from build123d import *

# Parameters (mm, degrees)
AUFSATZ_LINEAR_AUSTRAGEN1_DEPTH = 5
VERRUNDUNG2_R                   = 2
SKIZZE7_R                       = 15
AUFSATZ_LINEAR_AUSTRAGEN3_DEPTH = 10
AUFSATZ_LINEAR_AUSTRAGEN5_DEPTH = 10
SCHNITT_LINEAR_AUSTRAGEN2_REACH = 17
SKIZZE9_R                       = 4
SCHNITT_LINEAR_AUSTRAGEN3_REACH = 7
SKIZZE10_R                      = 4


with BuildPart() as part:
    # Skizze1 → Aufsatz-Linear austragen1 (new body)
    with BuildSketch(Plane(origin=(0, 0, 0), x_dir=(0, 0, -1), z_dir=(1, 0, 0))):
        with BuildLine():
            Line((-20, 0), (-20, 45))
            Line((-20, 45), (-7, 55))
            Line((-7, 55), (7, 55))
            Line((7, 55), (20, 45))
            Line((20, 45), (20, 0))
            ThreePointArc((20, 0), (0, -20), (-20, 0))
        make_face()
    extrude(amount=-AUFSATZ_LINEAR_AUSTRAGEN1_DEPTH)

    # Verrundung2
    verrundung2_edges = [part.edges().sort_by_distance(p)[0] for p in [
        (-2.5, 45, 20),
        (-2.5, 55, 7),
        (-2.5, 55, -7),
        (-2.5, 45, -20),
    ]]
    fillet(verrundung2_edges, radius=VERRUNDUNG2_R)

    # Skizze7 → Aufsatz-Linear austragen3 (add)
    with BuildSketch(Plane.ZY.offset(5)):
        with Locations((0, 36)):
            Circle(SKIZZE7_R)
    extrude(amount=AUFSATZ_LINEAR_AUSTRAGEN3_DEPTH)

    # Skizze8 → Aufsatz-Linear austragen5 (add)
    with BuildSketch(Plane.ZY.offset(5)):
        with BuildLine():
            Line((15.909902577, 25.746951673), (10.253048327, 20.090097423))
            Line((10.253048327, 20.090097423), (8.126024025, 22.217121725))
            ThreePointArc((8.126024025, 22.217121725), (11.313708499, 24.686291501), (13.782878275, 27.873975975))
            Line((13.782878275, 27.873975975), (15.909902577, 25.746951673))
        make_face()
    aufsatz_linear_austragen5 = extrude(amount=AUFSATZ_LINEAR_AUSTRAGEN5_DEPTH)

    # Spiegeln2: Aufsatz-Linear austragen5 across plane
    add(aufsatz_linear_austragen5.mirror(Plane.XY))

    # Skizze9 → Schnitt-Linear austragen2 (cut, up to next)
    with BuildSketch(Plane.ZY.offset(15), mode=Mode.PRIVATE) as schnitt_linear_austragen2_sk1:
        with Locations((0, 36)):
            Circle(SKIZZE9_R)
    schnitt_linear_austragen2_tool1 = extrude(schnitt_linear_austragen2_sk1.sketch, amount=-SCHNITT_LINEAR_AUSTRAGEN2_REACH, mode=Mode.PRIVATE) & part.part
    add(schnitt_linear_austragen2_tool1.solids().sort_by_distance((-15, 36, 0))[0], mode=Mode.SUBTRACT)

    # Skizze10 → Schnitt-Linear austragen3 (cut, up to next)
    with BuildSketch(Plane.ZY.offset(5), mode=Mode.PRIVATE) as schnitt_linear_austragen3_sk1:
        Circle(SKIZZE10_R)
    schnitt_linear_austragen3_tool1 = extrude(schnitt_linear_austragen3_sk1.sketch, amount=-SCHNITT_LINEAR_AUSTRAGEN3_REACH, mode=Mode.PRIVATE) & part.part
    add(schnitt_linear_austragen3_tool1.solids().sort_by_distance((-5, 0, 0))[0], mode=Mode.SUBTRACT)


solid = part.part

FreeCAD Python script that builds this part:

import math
import FreeCAD as App
import Part
import Sketcher

V = App.Vector
Q = App.Units.Quantity


def edges_at(feature, points):
    """Names of the edges that pass closest to the given points."""
    edges = feature.Shape.Edges
    near = lambda p: min(range(len(edges)), key=lambda i: edges[i].distToShape(Part.Vertex(*p))[0])
    return sorted({f"Edge{near(p) + 1}" for p in points})

doc = App.newDocument("Part")
body = doc.addObject("PartDesign::Body", "Body")

# Sketch on YZ plane
sketch1 = doc.addObject("Sketcher::SketchObject", "Sketch")
body.addObject(sketch1)
sketch1.AttachmentSupport = (doc.YZ_Plane, [""])
sketch1.MapMode = "FlatFace"
sketch1.addGeometry(Part.LineSegment(V(45, 20, 0), V(0, 20, 0)), False)
sketch1.addGeometry(Part.ArcOfCircle(Part.Circle(V(0, 0, 0), V(0, 0, 1), 20), math.radians(90), math.radians(270)), False)
sketch1.addGeometry(Part.LineSegment(V(0, -20, 0), V(45, -20, 0)), False)
sketch1.addGeometry(Part.LineSegment(V(45, -20, 0), V(55, -7, 0)), False)
sketch1.addGeometry(Part.LineSegment(V(55, -7, 0), V(55, 7, 0)), False)
sketch1.addGeometry(Part.LineSegment(V(55, 7, 0), V(45, 20, 0)), False)
sketch1.addConstraint(Sketcher.Constraint("Tangent", 0, 2, 1, 1))
sketch1.addConstraint(Sketcher.Constraint("Tangent", 1, 2, 2, 1))
sketch1.addConstraint(Sketcher.Constraint("Coincident", 2, 2, 3, 1))
sketch1.addConstraint(Sketcher.Constraint("Coincident", 3, 2, 4, 1))
sketch1.addConstraint(Sketcher.Constraint("Coincident", 4, 2, 5, 1))
sketch1.addConstraint(Sketcher.Constraint("Coincident", 5, 2, 0, 1))
sketch1.addConstraint(Sketcher.Constraint("Horizontal", 0))
sketch1.addConstraint(Sketcher.Constraint("Horizontal", 2))
sketch1.addConstraint(Sketcher.Constraint("Vertical", 4))
sketch1.addConstraint(Sketcher.Constraint("Coincident", 1, 3, -1, 1))
sketch1.addConstraint(Sketcher.Constraint("Vertical", 2, 2, 5, 2))
sketch1.addConstraint(Sketcher.Constraint("Equal", 3, 5))
sketch1.addConstraint(Sketcher.Constraint("Radius", 1, Q("20 mm")))
sketch1.addConstraint(Sketcher.Constraint("DistanceX", 0, 2, 0, 1, Q("45 mm")))
sketch1.addConstraint(Sketcher.Constraint("DistanceY", 4, 1, 4, 2, Q("14 mm")))
sketch1.addConstraint(Sketcher.Constraint("DistanceX", -1, 1, 3, 2, Q("55 mm")))
pad1 = doc.addObject("PartDesign::Pad", "Pad")
body.addObject(pad1)
pad1.Profile = sketch1
pad1.Length = 5
pad1.Reversed = True
doc.recompute()

fillet = doc.addObject("PartDesign::Fillet", "Fillet")
body.addObject(fillet)
fillet.Base = (pad1, edges_at(pad1, [
    (-2.5, 45, 20),
    (-2.5, 55, 7),
    (-2.5, 55, -7),
    (-2.5, 45, -20),
]))
fillet.Radius = 2

# Sketch on YZ plane
sketch2 = doc.addObject("Sketcher::SketchObject", "Sketch001")
body.addObject(sketch2)
sketch2.AttachmentSupport = (doc.YZ_Plane, [""])
sketch2.MapMode = "FlatFace"
sketch2.AttachmentOffset = App.Placement(V(0, 0, -5), App.Rotation())
sketch2.addGeometry(Part.Circle(V(36, 0, 0), V(0, 0, 1), 15), False)
sketch2.addConstraint(Sketcher.Constraint("PointOnObject", 0, 3, -1))
sketch2.addConstraint(Sketcher.Constraint("Diameter", 0, Q("30 mm")))
sketch2.addConstraint(Sketcher.Constraint("DistanceX", -1, 1, 0, 3, Q("36 mm")))
pad2 = doc.addObject("PartDesign::Pad", "Pad001")
body.addObject(pad2)
pad2.Profile = sketch2
pad2.Length = 10
pad2.Reversed = True

# Sketch on YZ plane
sketch3 = doc.addObject("Sketcher::SketchObject", "Sketch002")
body.addObject(sketch3)
sketch3.AttachmentSupport = (doc.YZ_Plane, [""])
sketch3.MapMode = "FlatFace"
sketch3.AttachmentOffset = App.Placement(V(0, 0, -5), App.Rotation())
sketch3.addGeometry(Part.LineSegment(V(20.1, 10.3, 0), V(25.7, 15.9, 0)), False)
sketch3.addGeometry(Part.LineSegment(V(25.7, 15.9, 0), V(27.9, 13.8, 0)), False)
sketch3.addGeometry(Part.ArcOfCircle(Part.Circle(V(36, 0, 0), V(0, 0, 1), 16), math.radians(121), math.radians(149)), False)
sketch3.addGeometry(Part.LineSegment(V(22.2, 8.1, 0), V(20.1, 10.3, 0)), False)
sketch3.addConstraint(Sketcher.Constraint("Coincident", 0, 2, 1, 1))
sketch3.addConstraint(Sketcher.Constraint("Coincident", 1, 2, 2, 1))
sketch3.addConstraint(Sketcher.Constraint("Coincident", 2, 2, 3, 1))
sketch3.addConstraint(Sketcher.Constraint("Coincident", 3, 2, 0, 1))
sketch3.addConstraint(Sketcher.Constraint("PointOnObject", 2, 3, -1))
sketch3.addConstraint(Sketcher.Constraint("Perpendicular", 0, 1))
sketch3.addConstraint(Sketcher.Constraint("Parallel", 1, 3))
sketch3.addConstraint(Sketcher.Constraint("Equal", 1, 3))
sketch3.addConstraint(Sketcher.Constraint("Radius", 2, Q("16 mm")))
sketch3.addConstraint(Sketcher.Constraint("Angle", 0, Q("45 deg")))
sketch3.addConstraint(Sketcher.Constraint("Distance", 0, Q("8 mm")))
sketch3.addConstraint(Sketcher.Constraint("DistanceX", -1, 1, 2, 3, Q("36 mm")))
sketch3.addConstraint(Sketcher.Constraint("DistanceX", -1, 1, 0, 2, Q("25.746952 mm")))
pad3 = doc.addObject("PartDesign::Pad", "Pad002")
body.addObject(pad3)
pad3.Profile = sketch3
pad3.Length = 10
pad3.Reversed = True
doc.recompute()

mirrored = doc.addObject("PartDesign::Mirrored", "Mirrored")
body.addObject(mirrored)
mirrored.Originals = [pad3]
mirrored.MirrorPlane = (doc.XY_Plane, [""])
body.Tip = mirrored

# Sketch on YZ plane
sketch4 = doc.addObject("Sketcher::SketchObject", "Sketch003")
body.addObject(sketch4)
sketch4.AttachmentSupport = (doc.YZ_Plane, [""])
sketch4.MapMode = "FlatFace"
sketch4.AttachmentOffset = App.Placement(V(0, 0, -15), App.Rotation())
sketch4.addGeometry(Part.Circle(V(36, 0, 0), V(0, 0, 1), 4), False)
sketch4.addConstraint(Sketcher.Constraint("PointOnObject", 0, 3, -1))
sketch4.addConstraint(Sketcher.Constraint("Diameter", 0, Q("8 mm")))
sketch4.addConstraint(Sketcher.Constraint("DistanceX", -1, 1, 0, 3, Q("36 mm")))
pocket1 = doc.addObject("PartDesign::Pocket", "Pocket")
body.addObject(pocket1)
pocket1.Profile = sketch4
pocket1.Type = "UpToFirst"
pocket1.Reversed = True

# Sketch on YZ plane
sketch5 = doc.addObject("Sketcher::SketchObject", "Sketch004")
body.addObject(sketch5)
sketch5.AttachmentSupport = (doc.YZ_Plane, [""])
sketch5.MapMode = "FlatFace"
sketch5.AttachmentOffset = App.Placement(V(0, 0, -5), App.Rotation())
sketch5.addGeometry(Part.Circle(V(0, 0, 0), V(0, 0, 1), 4), False)
sketch5.addConstraint(Sketcher.Constraint("Coincident", 0, 3, -1, 1))
sketch5.addConstraint(Sketcher.Constraint("Diameter", 0, Q("8 mm")))
pocket2 = doc.addObject("PartDesign::Pocket", "Pocket001")
body.addObject(pocket2)
pocket2.Profile = sketch5
pocket2.Type = "UpToFirst"
pocket2.Reversed = True

doc.recompute()
